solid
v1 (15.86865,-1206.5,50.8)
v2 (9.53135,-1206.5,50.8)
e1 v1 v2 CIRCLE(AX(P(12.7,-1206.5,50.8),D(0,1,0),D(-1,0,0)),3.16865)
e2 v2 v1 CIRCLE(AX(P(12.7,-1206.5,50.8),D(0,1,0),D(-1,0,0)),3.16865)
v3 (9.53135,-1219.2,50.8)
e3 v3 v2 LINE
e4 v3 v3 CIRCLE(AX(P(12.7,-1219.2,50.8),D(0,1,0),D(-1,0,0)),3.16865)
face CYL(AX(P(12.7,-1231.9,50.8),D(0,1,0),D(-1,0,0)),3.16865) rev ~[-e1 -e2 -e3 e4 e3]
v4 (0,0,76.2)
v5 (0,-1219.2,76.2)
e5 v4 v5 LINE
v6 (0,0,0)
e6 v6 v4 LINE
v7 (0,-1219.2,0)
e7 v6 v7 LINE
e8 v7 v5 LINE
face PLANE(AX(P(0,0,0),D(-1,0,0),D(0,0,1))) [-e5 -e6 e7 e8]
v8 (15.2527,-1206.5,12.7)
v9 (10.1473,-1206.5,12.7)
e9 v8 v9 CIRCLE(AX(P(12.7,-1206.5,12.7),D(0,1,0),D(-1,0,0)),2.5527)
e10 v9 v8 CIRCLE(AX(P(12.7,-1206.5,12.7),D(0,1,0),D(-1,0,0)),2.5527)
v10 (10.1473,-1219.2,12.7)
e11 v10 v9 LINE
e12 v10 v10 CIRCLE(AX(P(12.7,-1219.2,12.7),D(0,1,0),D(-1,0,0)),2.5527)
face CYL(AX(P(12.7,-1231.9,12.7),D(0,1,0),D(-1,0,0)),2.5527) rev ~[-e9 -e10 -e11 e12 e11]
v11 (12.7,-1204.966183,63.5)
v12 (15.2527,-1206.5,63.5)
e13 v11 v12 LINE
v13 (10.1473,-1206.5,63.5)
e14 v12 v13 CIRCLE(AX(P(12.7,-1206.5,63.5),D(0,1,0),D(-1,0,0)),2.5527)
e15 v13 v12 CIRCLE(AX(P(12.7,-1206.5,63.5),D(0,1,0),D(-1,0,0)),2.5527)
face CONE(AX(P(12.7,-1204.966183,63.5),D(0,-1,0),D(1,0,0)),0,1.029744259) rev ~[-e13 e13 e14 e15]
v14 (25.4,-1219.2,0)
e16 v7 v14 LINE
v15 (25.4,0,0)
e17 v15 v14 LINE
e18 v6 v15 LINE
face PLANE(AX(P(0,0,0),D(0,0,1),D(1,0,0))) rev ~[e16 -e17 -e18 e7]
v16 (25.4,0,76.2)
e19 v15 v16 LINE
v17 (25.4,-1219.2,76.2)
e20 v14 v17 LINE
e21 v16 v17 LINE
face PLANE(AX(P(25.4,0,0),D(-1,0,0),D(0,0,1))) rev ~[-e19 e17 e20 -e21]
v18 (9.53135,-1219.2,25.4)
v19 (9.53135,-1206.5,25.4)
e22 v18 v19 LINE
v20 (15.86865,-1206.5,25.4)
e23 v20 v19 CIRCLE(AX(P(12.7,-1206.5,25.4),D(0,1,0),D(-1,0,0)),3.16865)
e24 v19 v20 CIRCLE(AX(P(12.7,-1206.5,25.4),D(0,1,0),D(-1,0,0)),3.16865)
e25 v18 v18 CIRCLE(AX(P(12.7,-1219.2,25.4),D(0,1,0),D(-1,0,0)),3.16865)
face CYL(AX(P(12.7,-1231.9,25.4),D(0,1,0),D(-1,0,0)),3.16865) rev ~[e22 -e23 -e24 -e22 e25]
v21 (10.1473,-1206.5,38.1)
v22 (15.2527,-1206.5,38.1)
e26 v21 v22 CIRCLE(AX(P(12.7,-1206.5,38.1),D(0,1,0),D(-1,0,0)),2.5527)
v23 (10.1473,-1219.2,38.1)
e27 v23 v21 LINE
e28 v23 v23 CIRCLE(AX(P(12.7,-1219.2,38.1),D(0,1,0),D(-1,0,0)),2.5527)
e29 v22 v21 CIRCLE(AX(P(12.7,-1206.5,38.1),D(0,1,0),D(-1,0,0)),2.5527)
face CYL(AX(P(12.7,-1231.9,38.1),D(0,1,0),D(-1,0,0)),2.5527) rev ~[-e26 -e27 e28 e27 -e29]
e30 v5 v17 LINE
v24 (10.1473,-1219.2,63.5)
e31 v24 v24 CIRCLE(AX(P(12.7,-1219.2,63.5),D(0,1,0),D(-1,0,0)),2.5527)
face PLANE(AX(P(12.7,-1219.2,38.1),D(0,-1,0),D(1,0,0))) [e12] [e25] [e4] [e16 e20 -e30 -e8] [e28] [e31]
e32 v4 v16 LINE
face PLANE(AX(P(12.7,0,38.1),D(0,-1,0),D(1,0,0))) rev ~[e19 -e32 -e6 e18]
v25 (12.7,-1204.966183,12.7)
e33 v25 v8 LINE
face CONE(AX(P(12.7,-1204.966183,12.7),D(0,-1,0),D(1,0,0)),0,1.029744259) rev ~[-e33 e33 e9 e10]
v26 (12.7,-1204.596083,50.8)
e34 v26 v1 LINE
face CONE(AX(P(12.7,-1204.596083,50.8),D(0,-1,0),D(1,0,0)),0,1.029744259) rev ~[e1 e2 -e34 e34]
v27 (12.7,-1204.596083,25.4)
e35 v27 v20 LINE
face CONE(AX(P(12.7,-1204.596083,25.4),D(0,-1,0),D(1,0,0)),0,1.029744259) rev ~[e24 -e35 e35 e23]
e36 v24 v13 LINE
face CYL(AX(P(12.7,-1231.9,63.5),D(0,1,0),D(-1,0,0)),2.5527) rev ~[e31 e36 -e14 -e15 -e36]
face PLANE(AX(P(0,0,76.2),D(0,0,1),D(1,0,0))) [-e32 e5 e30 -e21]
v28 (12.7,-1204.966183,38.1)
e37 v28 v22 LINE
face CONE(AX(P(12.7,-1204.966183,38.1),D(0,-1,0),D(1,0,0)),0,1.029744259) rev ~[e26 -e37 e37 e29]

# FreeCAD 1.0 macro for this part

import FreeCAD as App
import Part
import Sketcher

V = App.Vector
Q = App.Units.Quantity

doc = App.newDocument("Part")
body = doc.addObject("PartDesign::Body", "Body")

sketch1 = body.newObject("Sketcher::SketchObject", "Sketch")
sketch1.AttachmentSupport = (doc.getObject("XZ_Plane"), [""])
sketch1.MapMode = "FlatFace"
sketch1.addGeometry([
    Part.LineSegment(V(0, 76, 0), V(0, 0, 0)),
    Part.LineSegment(V(0, 0, 0), V(25, 0, 0)),
    Part.LineSegment(V(25, 0, 0), V(25, 76, 0)),
    Part.LineSegment(V(25, 76, 0), V(0, 76, 0)),
], False)
sketch1.addConstraint([
    Sketcher.Constraint("Coincident", 0, 2, 1, 1),
    Sketcher.Constraint("Coincident", 1, 2, 2, 1),
    Sketcher.Constraint("Coincident", 2, 2, 3, 1),
    Sketcher.Constraint("Coincident", 3, 2, 0, 1),
    Sketcher.Constraint("Vertical", 0),
    Sketcher.Constraint("Horizontal", 1),
    Sketcher.Constraint("Vertical", 2),
    Sketcher.Constraint("Horizontal", 3),
    Sketcher.Constraint("Coincident", 0, 2, -1, 1),
    Sketcher.Constraint("DistanceX", 1, 1, 1, 2, Q("1 in")),
    Sketcher.Constraint("DistanceY", 0, 2, 0, 1, Q("3 in")),
])
pad1 = body.newObject("PartDesign::Pad", "Pad")
pad1.Profile = sketch1
pad1.Length = Q("48 in")

sketch2 = body.newObject("Sketcher::SketchObject", "Sketch001")
sketch2.AttachmentSupport = (doc.getObject("XZ_Plane"), [""])
sketch2.MapMode = "FlatFace"
sketch2.AttachmentOffset = App.Placement(V(0, 0, 48 * 25.4), App.Rotation())
sketch2.addGeometry([
    Part.Circle(V(12.7, 63.5, 0), V(0, 0, 1), 2.6),
    Part.Circle(V(12.7, 38.1, 0), V(0, 0, 1), 2.6),
    Part.Circle(V(12.7, 12.7, 0), V(0, 0, 1), 2.6),
], False)
sketch2.addConstraint([
    Sketcher.Constraint("Equal", 0, 1),
    Sketcher.Constraint("Equal", 1, 2),
    Sketcher.Constraint("Vertical", 0, 3, 1, 3),
    Sketcher.Constraint("Vertical", 1, 3, 2, 3),
    Sketcher.Constraint("Diameter", 0, Q("0.201 in")),
    Sketcher.Constraint("DistanceY", 1, 3, 0, 3, Q("1 in")),
    Sketcher.Constraint("DistanceY", 2, 3, 1, 3, Q("1 in")),
    Sketcher.Constraint("DistanceX", -1, 1, 0, 3, Q("0.5 in")),
    Sketcher.Constraint("DistanceY", -1, 1, 0, 3, Q("2.5 in")),
])
doc.recompute()
hole = body.newObject("PartDesign::Hole", "Hole")
hole.Profile = sketch2
hole.ThreadType = "None"
hole.Diameter = Q("0.201 in")
hole.DepthType = "Dimension"
hole.Depth = Q("0.5 in")
hole.DrillPoint = "Angled"
hole.DrillPointAngle = 118

sketch3 = body.newObject("Sketcher::SketchObject", "Sketch002")
sketch3.AttachmentSupport = (doc.getObject("XZ_Plane"), [""])
sketch3.MapMode = "FlatFace"
sketch3.AttachmentOffset = App.Placement(V(0, 0, 48 * 25.4), App.Rotation())
sketch3.addGeometry([
    Part.Circle(V(12.7, 50.8, 0), V(0, 0, 1), 3.2),
    Part.Circle(V(12.7, 25.4, 0), V(0, 0, 1), 3.2),
], False)
sketch3.addConstraint([
    Sketcher.Constraint("Equal", 0, 1),
    Sketcher.Constraint("Vertical", 0, 3, 1, 3),
    Sketcher.Constraint("DistanceY", -1, 1, 0, 3, Q("2 in")),
    Sketcher.Constraint("DistanceY", -1, 1, 1, 3, Q("1 in")),
    Sketcher.Constraint("Diameter", 0, Q("0.2495 in")),
    Sketcher.Constraint("DistanceX", -1, 1, 0, 3, Q("0.5 in")),
])
doc.recompute()
hole2 = body.newObject("PartDesign::Hole", "Hole001")
hole2.Profile = sketch3
hole2.ThreadType = "None"
hole2.Diameter = Q("0.2495 in")
hole2.DepthType = "Dimension"
hole2.Depth = Q("0.5 in")
hole2.DrillPoint = "Angled"
hole2.DrillPointAngle = 118

doc.recompute()
